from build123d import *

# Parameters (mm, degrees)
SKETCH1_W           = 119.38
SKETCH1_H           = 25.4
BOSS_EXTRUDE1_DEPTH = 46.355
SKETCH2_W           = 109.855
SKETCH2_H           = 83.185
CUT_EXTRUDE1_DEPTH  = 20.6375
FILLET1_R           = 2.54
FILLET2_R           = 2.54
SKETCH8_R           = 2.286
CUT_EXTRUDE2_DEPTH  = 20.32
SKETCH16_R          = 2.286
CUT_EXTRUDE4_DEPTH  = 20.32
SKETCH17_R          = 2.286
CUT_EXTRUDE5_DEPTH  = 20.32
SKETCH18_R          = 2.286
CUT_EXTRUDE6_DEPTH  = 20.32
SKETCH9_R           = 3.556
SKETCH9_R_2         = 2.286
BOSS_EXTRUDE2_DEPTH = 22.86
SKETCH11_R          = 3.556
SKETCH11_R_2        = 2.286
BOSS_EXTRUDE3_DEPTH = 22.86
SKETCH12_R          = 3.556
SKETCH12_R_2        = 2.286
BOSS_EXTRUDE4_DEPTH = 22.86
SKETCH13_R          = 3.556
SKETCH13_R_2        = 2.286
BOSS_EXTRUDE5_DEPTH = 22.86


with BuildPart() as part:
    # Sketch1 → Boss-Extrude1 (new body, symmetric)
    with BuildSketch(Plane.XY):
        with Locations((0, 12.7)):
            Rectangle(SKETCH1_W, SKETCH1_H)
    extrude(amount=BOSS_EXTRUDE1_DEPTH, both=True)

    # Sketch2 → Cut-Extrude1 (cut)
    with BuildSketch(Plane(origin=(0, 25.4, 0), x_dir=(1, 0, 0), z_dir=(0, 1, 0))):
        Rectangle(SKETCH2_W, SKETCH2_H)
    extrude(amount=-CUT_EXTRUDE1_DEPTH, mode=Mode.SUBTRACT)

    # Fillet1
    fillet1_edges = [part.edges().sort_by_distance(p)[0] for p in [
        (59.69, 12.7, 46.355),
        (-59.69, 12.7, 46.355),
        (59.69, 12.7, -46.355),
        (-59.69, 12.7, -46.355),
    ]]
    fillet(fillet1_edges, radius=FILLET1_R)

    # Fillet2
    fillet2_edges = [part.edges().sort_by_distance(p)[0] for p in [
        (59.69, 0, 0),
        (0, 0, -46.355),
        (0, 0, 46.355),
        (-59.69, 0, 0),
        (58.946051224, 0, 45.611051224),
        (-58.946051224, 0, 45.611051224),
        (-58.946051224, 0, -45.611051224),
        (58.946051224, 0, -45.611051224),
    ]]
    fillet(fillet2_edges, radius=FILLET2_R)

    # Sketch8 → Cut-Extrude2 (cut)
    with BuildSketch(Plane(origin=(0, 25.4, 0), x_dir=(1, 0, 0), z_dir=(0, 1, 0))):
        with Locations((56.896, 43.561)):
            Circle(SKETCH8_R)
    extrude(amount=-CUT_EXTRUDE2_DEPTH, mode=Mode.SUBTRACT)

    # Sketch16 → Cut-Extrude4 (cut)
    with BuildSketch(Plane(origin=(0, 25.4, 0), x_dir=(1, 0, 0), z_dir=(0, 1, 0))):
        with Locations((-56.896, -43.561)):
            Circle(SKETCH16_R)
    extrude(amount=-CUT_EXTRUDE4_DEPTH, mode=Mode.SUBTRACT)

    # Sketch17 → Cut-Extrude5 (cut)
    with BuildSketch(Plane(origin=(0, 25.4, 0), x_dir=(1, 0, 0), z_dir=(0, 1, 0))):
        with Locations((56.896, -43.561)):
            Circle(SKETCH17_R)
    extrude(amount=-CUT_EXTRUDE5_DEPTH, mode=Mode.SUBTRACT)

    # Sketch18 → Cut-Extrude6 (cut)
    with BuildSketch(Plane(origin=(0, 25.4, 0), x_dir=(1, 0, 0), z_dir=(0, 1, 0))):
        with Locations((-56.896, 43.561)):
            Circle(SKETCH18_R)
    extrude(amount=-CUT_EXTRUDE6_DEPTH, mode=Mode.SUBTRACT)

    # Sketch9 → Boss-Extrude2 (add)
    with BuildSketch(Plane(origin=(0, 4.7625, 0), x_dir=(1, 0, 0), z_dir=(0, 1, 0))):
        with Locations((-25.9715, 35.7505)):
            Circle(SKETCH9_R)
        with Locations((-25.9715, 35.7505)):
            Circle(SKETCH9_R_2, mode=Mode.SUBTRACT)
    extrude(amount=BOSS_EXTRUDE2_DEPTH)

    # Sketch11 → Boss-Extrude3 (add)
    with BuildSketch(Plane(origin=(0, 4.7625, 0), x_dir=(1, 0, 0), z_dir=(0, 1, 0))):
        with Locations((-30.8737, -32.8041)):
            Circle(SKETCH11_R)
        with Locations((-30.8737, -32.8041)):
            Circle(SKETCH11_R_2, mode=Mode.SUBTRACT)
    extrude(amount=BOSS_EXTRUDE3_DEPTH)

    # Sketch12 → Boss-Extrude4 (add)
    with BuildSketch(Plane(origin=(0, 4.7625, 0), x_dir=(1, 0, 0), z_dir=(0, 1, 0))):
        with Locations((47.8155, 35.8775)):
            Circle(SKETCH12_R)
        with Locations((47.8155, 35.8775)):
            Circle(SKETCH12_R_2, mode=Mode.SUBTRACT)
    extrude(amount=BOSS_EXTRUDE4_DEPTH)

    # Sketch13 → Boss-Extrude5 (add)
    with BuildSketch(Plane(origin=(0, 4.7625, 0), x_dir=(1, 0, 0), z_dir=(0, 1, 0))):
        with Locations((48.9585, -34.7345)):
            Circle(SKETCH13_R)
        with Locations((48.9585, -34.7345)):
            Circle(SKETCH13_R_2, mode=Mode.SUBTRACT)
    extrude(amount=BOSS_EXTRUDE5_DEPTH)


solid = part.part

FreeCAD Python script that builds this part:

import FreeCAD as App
import Part
import Sketcher
Q = App.Units.Quantity


def edges_at(feature, points):
    """Names of the edges that pass closest to the given points."""
    edges = feature.Shape.Edges
    near = lambda p: min(range(len(edges)), key=lambda i: edges[i].distToShape(Part.Vertex(*p))[0])
    return sorted({f"Edge{near(p) + 1}" for p in points})

doc = App.newDocument("Part")
body = doc.addObject("PartDesign::Body", "Body")

# Sketch on XY plane
sketch1 = body.newObject("Sketcher::SketchObject", "Sketch")
sketch1.AttachmentSupport = (doc.getObject("XY_Plane"), [""])
sketch1.MapMode = "FlatFace"
sketch1.addGeometry(Part.LineSegment(App.Vector(-60, 25, 0), App.Vector(-60, 0, 0)), False)
sketch1.addGeometry(Part.LineSegment(App.Vector(-60, 0, 0), App.Vector(60, 0, 0)), False)
sketch1.addGeometry(Part.LineSegment(App.Vector(60, 0, 0), App.Vector(60, 25, 0)), False)
sketch1.addGeometry(Part.LineSegment(App.Vector(60, 25, 0), App.Vector(-60, 25, 0)), False)
sketch1.addConstraint(Sketcher.Constraint("Coincident", 0, 2, 1, 1))
sketch1.addConstraint(Sketcher.Constraint("Coincident", 1, 2, 2, 1))
sketch1.addConstraint(Sketcher.Constraint("Coincident", 2, 2, 3, 1))
sketch1.addConstraint(Sketcher.Constraint("Coincident", 3, 2, 0, 1))
sketch1.addConstraint(Sketcher.Constraint("Vertical", 0))
sketch1.addConstraint(Sketcher.Constraint("Horizontal", 1))
sketch1.addConstraint(Sketcher.Constraint("Vertical", 2))
sketch1.addConstraint(Sketcher.Constraint("Horizontal", 3))
sketch1.addConstraint(Sketcher.Constraint("Symmetric", 0, 2, 1, 2, -1, 1))
sketch1.addConstraint(Sketcher.Constraint("DistanceY", 0, 2, 0, 1, Q("1 in")))
sketch1.addConstraint(Sketcher.Constraint("DistanceX", 1, 1, 1, 2, Q("4.7 in")))
pad1 = body.newObject("PartDesign::Pad", "Pad")
pad1.Profile = sketch1
pad1.Length = Q("3.65 in")
pad1.Midplane = True

# Sketch on XZ plane
sketch2 = body.newObject("Sketcher::SketchObject", "Sketch001")
sketch2.AttachmentSupport = (doc.getObject("XZ_Plane"), [""])
sketch2.MapMode = "FlatFace"
sketch2.AttachmentOffset = App.Placement(App.Vector(0, 0, -1 * 25.4), App.Rotation())
sketch2.addGeometry(Part.LineSegment(App.Vector(-55, -42, 0), App.Vector(-55, 42, 0)), False)
sketch2.addGeometry(Part.LineSegment(App.Vector(-55, 42, 0), App.Vector(55, 42, 0)), False)
sketch2.addGeometry(Part.LineSegment(App.Vector(55, 42, 0), App.Vector(55, -42, 0)), False)
sketch2.addGeometry(Part.LineSegment(App.Vector(55, -42, 0), App.Vector(-55, -42, 0)), False)
sketch2.addConstraint(Sketcher.Constraint("Coincident", 0, 2, 1, 1))
sketch2.addConstraint(Sketcher.Constraint("Coincident", 1, 2, 2, 1))
sketch2.addConstraint(Sketcher.Constraint("Coincident", 2, 2, 3, 1))
sketch2.addConstraint(Sketcher.Constraint("Coincident", 3, 2, 0, 1))
sketch2.addConstraint(Sketcher.Constraint("Vertical", 0))
sketch2.addConstraint(Sketcher.Constraint("Horizontal", 1))
sketch2.addConstraint(Sketcher.Constraint("Vertical", 2))
sketch2.addConstraint(Sketcher.Constraint("Horizontal", 3))
sketch2.addConstraint(Sketcher.Constraint("Symmetric", 0, 2, 2, 2, -1, 1))
sketch2.addConstraint(Sketcher.Constraint("DistanceX", 1, 1, 1, 2, Q("4.325 in")))
sketch2.addConstraint(Sketcher.Constraint("DistanceY", 0, 1, 0, 2, Q("3.275 in")))
pocket1 = body.newObject("PartDesign::Pocket", "Pocket")
pocket1.Profile = sketch2
pocket1.Length = Q("0.8125 in")
pocket1.Reversed = True
doc.recompute()

fillet = body.newObject("PartDesign::Fillet", "Fillet")
fillet.Base = (pocket1, edges_at(pocket1, [
    (59.69, 12.7, 46.355),
    (-59.69, 12.7, 46.355),
    (59.69, 12.7, -46.355),
    (-59.69, 12.7, -46.355),
]))
fillet.Radius = Q("0.1 in")
doc.recompute()

fillet2 = body.newObject("PartDesign::Fillet", "Fillet001")
fillet2.Base = (fillet, edges_at(fillet, [
    (59.69, 0, 0),
    (0, 0, -46.355),
    (0, 0, 46.355),
    (-59.69, 0, 0),
    (58.946, 0, 45.611),
    (-58.946, 0, 45.611),
    (-58.946, 0, -45.611),
    (58.946, 0, -45.611),
]))
fillet2.Radius = Q("0.1 in")

# Sketch on XZ plane
sketch3 = body.newObject("Sketcher::SketchObject", "Sketch002")
sketch3.AttachmentSupport = (doc.getObject("XZ_Plane"), [""])
sketch3.MapMode = "FlatFace"
sketch3.AttachmentOffset = App.Placement(App.Vector(0, 0, -1 * 25.4), App.Rotation())
sketch3.addGeometry(Part.Circle(App.Vector(56.9, -43.6, 0), App.Vector(0, 0, 1), 2.3), False)
sketch3.addConstraint(Sketcher.Constraint("Diameter", 0, Q("0.18 in")))
sketch3.addConstraint(Sketcher.Constraint("DistanceX", -1, 1, 0, 3, Q("2.24 in")))
sketch3.addConstraint(Sketcher.Constraint("DistanceY", 0, 3, -1, 1, Q("1.715 in")))
pocket2 = body.newObject("PartDesign::Pocket", "Pocket001")
pocket2.Profile = sketch3
pocket2.Length = Q("0.8 in")
pocket2.Reversed = True

# Sketch on XZ plane
sketch4 = body.newObject("Sketcher::SketchObject", "Sketch003")
sketch4.AttachmentSupport = (doc.getObject("XZ_Plane"), [""])
sketch4.MapMode = "FlatFace"
sketch4.AttachmentOffset = App.Placement(App.Vector(0, 0, -1 * 25.4), App.Rotation())
sketch4.addGeometry(Part.Circle(App.Vector(-56.9, 43.6, 0), App.Vector(0, 0, 1), 2.3), False)
sketch4.addConstraint(Sketcher.Constraint("Diameter", 0, Q("0.18 in")))
sketch4.addConstraint(Sketcher.Constraint("DistanceX", 0, 3, -1, 1, Q("2.24 in")))
sketch4.addConstraint(Sketcher.Constraint("DistanceY", -1, 1, 0, 3, Q("1.715 in")))
pocket3 = body.newObject("PartDesign::Pocket", "Pocket002")
pocket3.Profile = sketch4
pocket3.Length = Q("0.8 in")
pocket3.Reversed = True

# Sketch on XZ plane
sketch5 = body.newObject("Sketcher::SketchObject", "Sketch004")
sketch5.AttachmentSupport = (doc.getObject("XZ_Plane"), [""])
sketch5.MapMode = "FlatFace"
sketch5.AttachmentOffset = App.Placement(App.Vector(0, 0, -1 * 25.4), App.Rotation())
sketch5.addGeometry(Part.Circle(App.Vector(56.9, 43.6, 0), App.Vector(0, 0, 1), 2.3), False)
sketch5.addConstraint(Sketcher.Constraint("Diameter", 0, Q("0.18 in")))
sketch5.addConstraint(Sketcher.Constraint("DistanceX", -1, 1, 0, 3, Q("2.24 in")))
sketch5.addConstraint(Sketcher.Constraint("DistanceY", -1, 1, 0, 3, Q("1.715 in")))
pocket4 = body.newObject("PartDesign::Pocket", "Pocket003")
pocket4.Profile = sketch5
pocket4.Length = Q("0.8 in")
pocket4.Reversed = True

# Sketch on XZ plane
sketch6 = body.newObject("Sketcher::SketchObject", "Sketch005")
sketch6.AttachmentSupport = (doc.getObject("XZ_Plane"), [""])
sketch6.MapMode = "FlatFace"
sketch6.AttachmentOffset = App.Placement(App.Vector(0, 0, -1 * 25.4), App.Rotation())
sketch6.addGeometry(Part.Circle(App.Vector(-56.9, -43.6, 0), App.Vector(0, 0, 1), 2.3), False)
sketch6.addConstraint(Sketcher.Constraint("Diameter", 0, Q("0.18 in")))
sketch6.addConstraint(Sketcher.Constraint("DistanceX", 0, 3, -1, 1, Q("2.24 in")))
sketch6.addConstraint(Sketcher.Constraint("DistanceY", 0, 3, -1, 1, Q("1.715 in")))
pocket5 = body.newObject("PartDesign::Pocket", "Pocket004")
pocket5.Profile = sketch6
pocket5.Length = Q("0.8 in")
pocket5.Reversed = True

# Sketch on XZ plane
sketch7 = body.newObject("Sketcher::SketchObject", "Sketch006")
sketch7.AttachmentSupport = (doc.getObject("XZ_Plane"), [""])
sketch7.MapMode = "FlatFace"
sketch7.AttachmentOffset = App.Placement(App.Vector(0, 0, -0.1875 * 25.4), App.Rotation())
sketch7.addGeometry(Part.Circle(App.Vector(-26, -35.8, 0), App.Vector(0, 0, 1), 3.6), False)
sketch7.addGeometry(Part.Circle(App.Vector(-26, -35.8, 0), App.Vector(0, 0, 1), 2.3), False)
sketch7.addConstraint(Sketcher.Constraint("Coincident", 1, 3, 0, 3))
sketch7.addConstraint(Sketcher.Constraint("Diameter", 0, Q("0.28 in")))
sketch7.addConstraint(Sketcher.Constraint("Diameter", 1, Q("0.18 in")))
sketch7.addConstraint(Sketcher.Constraint("DistanceX", 0, 3, -1, 1, Q("1.0225 in")))
sketch7.addConstraint(Sketcher.Constraint("DistanceY", 0, 3, -1, 1, Q("1.4075 in")))
pad2 = body.newObject("PartDesign::Pad", "Pad001")
pad2.Profile = sketch7
pad2.Length = Q("0.9 in")
pad2.Reversed = True

# Sketch on XZ plane
sketch8 = body.newObject("Sketcher::SketchObject", "Sketch007")
sketch8.AttachmentSupport = (doc.getObject("XZ_Plane"), [""])
sketch8.MapMode = "FlatFace"
sketch8.AttachmentOffset = App.Placement(App.Vector(0, 0, -0.1875 * 25.4), App.Rotation())
sketch8.addGeometry(Part.Circle(App.Vector(-30.9, 32.8, 0), App.Vector(0, 0, 1), 3.6), False)
sketch8.addGeometry(Part.Circle(App.Vector(-30.9, 32.8, 0), App.Vector(0, 0, 1), 2.3), False)
sketch8.addConstraint(Sketcher.Constraint("Coincident", 1, 3, 0, 3))
sketch8.addConstraint(Sketcher.Constraint("Diameter", 0, Q("0.28 in")))
sketch8.addConstraint(Sketcher.Constraint("Diameter", 1, Q("0.18 in")))
sketch8.addConstraint(Sketcher.Constraint("DistanceX", 0, 3, -1, 1, Q("1.2155 in")))
sketch8.addConstraint(Sketcher.Constraint("DistanceY", -1, 1, 0, 3, Q("1.2915 in")))
pad3 = body.newObject("PartDesign::Pad", "Pad002")
pad3.Profile = sketch8
pad3.Length = Q("0.9 in")
pad3.Reversed = True

# Sketch on XZ plane
sketch9 = body.newObject("Sketcher::SketchObject", "Sketch008")
sketch9.AttachmentSupport = (doc.getObject("XZ_Plane"), [""])
sketch9.MapMode = "FlatFace"
sketch9.AttachmentOffset = App.Placement(App.Vector(0, 0, -0.1875 * 25.4), App.Rotation())
sketch9.addGeometry(Part.Circle(App.Vector(47.8, -35.9, 0), App.Vector(0, 0, 1), 3.6), False)
sketch9.addGeometry(Part.Circle(App.Vector(47.8, -35.9, 0), App.Vector(0, 0, 1), 2.3), False)
sketch9.addConstraint(Sketcher.Constraint("Coincident", 1, 3, 0, 3))
sketch9.addConstraint(Sketcher.Constraint("Diameter", 0, Q("0.28 in")))
sketch9.addConstraint(Sketcher.Constraint("Diameter", 1, Q("0.18 in")))
sketch9.addConstraint(Sketcher.Constraint("DistanceX", -1, 1, 0, 3, Q("1.8825 in")))
sketch9.addConstraint(Sketcher.Constraint("DistanceY", 0, 3, -1, 1, Q("1.4125 in")))
pad4 = body.newObject("PartDesign::Pad", "Pad003")
pad4.Profile = sketch9
pad4.Length = Q("0.9 in")
pad4.Reversed = True

# Sketch on XZ plane
sketch10 = body.newObject("Sketcher::SketchObject", "Sketch009")
sketch10.AttachmentSupport = (doc.getObject("XZ_Plane"), [""])
sketch10.MapMode = "FlatFace"
sketch10.AttachmentOffset = App.Placement(App.Vector(0, 0, -0.1875 * 25.4), App.Rotation())
sketch10.addGeometry(Part.Circle(App.Vector(49, 34.7, 0), App.Vector(0, 0, 1), 3.6), False)
sketch10.addGeometry(Part.Circle(App.Vector(49, 34.7, 0), App.Vector(0, 0, 1), 2.3), False)
sketch10.addConstraint(Sketcher.Constraint("Coincident", 1, 3, 0, 3))
sketch10.addConstraint(Sketcher.Constraint("Diameter", 0, Q("0.28 in")))
sketch10.addConstraint(Sketcher.Constraint("Diameter", 1, Q("0.18 in")))
sketch10.addConstraint(Sketcher.Constraint("DistanceX", -1, 1, 0, 3, Q("1.9275 in")))
sketch10.addConstraint(Sketcher.Constraint("DistanceY", -1, 1, 0, 3, Q("1.3675 in")))
pad5 = body.newObject("PartDesign::Pad", "Pad004")
pad5.Profile = sketch10
pad5.Length = Q("0.9 in")
pad5.Reversed = True

doc.recompute()
